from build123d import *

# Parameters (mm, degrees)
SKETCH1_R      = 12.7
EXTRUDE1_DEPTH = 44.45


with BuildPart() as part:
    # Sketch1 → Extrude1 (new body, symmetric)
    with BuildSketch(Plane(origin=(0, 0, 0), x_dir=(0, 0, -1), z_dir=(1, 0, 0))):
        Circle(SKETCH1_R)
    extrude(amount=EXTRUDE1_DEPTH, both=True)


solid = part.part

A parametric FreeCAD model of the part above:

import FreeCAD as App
import Part
import Sketcher
Q = App.Units.Quantity

doc = App.newDocument("Part")
params = doc.addObject("Spreadsheet::Sheet", "Params")
for row, (alias, value) in enumerate([
    ("sketch1_diameter", "1 in"),
    ("pad1_length", "3.5 in"),
], start=1):
    params.set(f"A{row}", alias)
    params.set(f"B{row}", "=" + value)
    params.setAlias(f"B{row}", alias)

body = doc.addObject("PartDesign::Body", "Body")

# Sketch on YZ plane
sketch1 = doc.addObject("Sketcher::SketchObject", "Sketch")
body.addObject(sketch1)
sketch1.AttachmentSupport = (doc.YZ_Plane, [""])
sketch1.MapMode = "FlatFace"
sketch1.addGeometry(Part.Circle(App.Vector(0, 0, 0), App.Vector(0, 0, 1), 13), False)
sketch1.addConstraint(Sketcher.Constraint("Coincident", 0, 3, -1, 1))
sketch1.addConstraint(Sketcher.Constraint("Diameter", 0, Q("1 in")))
sketch1.setExpression("Constraints[1]", "Params.sketch1_diameter")
pad1 = doc.addObject("PartDesign::Pad", "Pad")
body.addObject(pad1)
pad1.Profile = sketch1
pad1.setExpression("Length", "Params.pad1_length")
pad1.Midplane = True

doc.recompute()
